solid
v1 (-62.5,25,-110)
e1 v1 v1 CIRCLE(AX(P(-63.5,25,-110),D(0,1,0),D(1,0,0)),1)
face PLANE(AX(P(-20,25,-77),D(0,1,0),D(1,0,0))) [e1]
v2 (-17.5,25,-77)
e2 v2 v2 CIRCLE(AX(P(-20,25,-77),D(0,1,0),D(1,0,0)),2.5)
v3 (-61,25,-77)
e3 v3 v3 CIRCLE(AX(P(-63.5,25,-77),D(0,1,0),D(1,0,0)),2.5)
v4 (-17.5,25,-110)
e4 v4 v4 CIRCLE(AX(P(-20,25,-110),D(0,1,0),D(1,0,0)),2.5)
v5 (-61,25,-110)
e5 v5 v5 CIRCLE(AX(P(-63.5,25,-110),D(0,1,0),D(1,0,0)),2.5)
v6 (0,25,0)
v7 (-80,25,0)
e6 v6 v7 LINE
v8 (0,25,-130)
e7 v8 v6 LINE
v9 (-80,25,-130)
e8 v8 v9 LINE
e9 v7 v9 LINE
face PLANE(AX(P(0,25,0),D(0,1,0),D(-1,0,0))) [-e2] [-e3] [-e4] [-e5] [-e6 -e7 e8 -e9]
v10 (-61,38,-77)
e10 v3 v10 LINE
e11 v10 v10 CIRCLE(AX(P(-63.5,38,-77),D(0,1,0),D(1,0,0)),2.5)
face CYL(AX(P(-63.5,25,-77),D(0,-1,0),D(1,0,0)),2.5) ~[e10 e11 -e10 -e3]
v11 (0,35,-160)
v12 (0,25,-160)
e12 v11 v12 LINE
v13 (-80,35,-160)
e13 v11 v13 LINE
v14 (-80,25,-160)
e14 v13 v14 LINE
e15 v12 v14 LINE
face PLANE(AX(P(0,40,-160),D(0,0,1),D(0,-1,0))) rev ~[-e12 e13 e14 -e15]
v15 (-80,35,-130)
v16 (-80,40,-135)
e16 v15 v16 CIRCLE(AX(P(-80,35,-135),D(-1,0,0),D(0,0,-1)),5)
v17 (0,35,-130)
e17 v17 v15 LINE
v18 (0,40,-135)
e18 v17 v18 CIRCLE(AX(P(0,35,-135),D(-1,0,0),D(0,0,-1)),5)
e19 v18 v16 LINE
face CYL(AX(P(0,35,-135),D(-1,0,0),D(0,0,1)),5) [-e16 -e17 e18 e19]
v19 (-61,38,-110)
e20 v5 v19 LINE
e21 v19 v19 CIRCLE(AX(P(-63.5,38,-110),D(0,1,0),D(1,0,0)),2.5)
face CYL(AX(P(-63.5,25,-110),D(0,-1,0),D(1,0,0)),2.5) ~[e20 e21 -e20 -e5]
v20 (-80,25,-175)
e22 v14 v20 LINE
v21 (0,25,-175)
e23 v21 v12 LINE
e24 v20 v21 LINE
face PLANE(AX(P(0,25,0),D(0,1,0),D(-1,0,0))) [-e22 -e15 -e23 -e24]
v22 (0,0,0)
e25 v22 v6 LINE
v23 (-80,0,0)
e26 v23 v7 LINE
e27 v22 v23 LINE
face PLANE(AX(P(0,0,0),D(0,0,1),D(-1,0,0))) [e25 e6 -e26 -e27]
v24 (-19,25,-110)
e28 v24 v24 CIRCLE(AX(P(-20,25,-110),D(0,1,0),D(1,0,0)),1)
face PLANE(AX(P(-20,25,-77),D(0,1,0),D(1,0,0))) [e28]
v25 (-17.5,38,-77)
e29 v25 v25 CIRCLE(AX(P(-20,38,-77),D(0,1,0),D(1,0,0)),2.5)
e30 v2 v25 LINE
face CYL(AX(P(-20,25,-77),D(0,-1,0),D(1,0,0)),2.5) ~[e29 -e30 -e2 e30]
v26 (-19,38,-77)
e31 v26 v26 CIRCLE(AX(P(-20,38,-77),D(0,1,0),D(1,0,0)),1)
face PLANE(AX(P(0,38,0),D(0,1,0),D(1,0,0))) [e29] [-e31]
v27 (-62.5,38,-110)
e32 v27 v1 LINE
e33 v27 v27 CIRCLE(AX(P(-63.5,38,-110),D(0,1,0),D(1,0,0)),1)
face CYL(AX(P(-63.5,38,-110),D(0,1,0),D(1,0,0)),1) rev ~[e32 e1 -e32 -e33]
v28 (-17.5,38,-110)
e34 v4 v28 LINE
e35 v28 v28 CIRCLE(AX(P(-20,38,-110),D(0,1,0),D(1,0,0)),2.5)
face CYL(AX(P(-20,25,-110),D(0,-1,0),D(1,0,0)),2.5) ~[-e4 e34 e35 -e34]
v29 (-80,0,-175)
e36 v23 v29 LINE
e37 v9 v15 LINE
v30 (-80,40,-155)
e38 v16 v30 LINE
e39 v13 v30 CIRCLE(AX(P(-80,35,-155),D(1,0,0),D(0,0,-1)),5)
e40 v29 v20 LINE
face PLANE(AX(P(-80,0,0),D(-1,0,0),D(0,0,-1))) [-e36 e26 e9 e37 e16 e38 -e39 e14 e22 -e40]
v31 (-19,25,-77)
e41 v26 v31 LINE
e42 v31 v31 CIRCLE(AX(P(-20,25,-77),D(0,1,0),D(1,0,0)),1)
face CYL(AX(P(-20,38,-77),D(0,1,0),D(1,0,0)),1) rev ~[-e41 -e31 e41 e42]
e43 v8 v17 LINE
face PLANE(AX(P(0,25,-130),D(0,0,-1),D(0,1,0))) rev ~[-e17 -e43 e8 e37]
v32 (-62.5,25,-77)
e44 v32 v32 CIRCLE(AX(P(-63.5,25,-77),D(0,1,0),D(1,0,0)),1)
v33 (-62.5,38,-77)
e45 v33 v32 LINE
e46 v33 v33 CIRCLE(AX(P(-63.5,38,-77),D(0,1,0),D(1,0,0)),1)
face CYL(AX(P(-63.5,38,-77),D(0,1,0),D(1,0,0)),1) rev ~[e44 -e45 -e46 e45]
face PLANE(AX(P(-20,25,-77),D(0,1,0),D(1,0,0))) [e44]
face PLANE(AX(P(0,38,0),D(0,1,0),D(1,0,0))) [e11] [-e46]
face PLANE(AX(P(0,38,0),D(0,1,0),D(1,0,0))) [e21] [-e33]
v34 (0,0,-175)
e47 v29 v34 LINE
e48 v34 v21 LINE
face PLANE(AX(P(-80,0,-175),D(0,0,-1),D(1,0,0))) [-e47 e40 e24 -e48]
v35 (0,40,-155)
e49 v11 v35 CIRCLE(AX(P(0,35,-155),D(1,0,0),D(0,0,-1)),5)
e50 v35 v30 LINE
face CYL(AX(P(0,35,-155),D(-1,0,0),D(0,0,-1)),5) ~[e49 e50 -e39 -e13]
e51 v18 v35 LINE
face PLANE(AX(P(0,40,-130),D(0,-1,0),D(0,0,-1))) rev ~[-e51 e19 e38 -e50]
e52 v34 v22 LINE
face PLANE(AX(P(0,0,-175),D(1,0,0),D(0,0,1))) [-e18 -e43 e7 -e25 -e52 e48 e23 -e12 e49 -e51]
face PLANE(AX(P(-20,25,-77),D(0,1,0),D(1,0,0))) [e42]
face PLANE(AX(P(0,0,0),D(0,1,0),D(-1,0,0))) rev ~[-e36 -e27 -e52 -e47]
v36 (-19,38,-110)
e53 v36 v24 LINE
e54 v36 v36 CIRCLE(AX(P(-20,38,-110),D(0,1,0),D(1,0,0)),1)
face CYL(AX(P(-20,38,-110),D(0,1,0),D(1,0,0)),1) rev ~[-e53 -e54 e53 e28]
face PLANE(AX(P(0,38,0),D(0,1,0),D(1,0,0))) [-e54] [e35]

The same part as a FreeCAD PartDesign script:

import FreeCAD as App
import Part
import Sketcher
from FreeCAD import Vector
Q = App.Units.Quantity


def edges_at(feature, points):
    """Names of the edges that pass closest to the given points."""
    edges = feature.Shape.Edges
    near = lambda p: min(range(len(edges)), key=lambda i: edges[i].distToShape(Part.Vertex(*p))[0])
    return sorted({f"Edge{near(p) + 1}" for p in points})


def add_polygon(sketch, points):
    """Adds a closed chain of lines whose ends are joined by coincident constraints."""
    first, n = sketch.GeometryCount, len(points)
    for a, b in zip(points, points[1:] + points[:1]):
        sketch.addGeometry(Part.LineSegment(App.Vector(*a, 0), App.Vector(*b, 0)), False)
    for i in range(n):
        sketch.addConstraint(Sketcher.Constraint("Coincident", first + i, 2, first + (i + 1) % n, 1))

doc = App.newDocument("Part")
body = doc.addObject("PartDesign::Body", "Body")

# Sketch on XZ plane
sketch1 = body.newObject("Sketcher::SketchObject", "Sketch")
sketch1.AttachmentSupport = (doc.getObject("XZ_Plane"), [""])
sketch1.MapMode = "FlatFace"
add_polygon(sketch1, [(-80, 0), (0, 0), (0, -175), (-80, -175)])  # lines 0-3
sketch1.addConstraint([
    Sketcher.Constraint("Horizontal", 0),
    Sketcher.Constraint("Vertical", 1),
    Sketcher.Constraint("Horizontal", 2),
    Sketcher.Constraint("Vertical", 3),
    Sketcher.Constraint("Coincident", 0, 2, -1, 1),
    Sketcher.Constraint("DistanceX", 0, 1, 0, 2, Q("80 mm")),
    Sketcher.Constraint("DistanceY", 1, 2, 1, 1, Q("175 mm")),
])
pad1 = body.newObject("PartDesign::Pad", "Pad")
pad1.Profile = sketch1
pad1.Length = 25
pad1.Reversed = True

# Sketch on YZ plane
sketch2 = body.newObject("Sketcher::SketchObject", "Sketch001")
sketch2.AttachmentSupport = (doc.getObject("YZ_Plane"), [""])
sketch2.MapMode = "FlatFace"
add_polygon(sketch2, [(25, -130), (25, -160), (40, -160), (40, -130)])  # lines 0-3
sketch2.addConstraint([
    Sketcher.Constraint("Vertical", 0),
    Sketcher.Constraint("Horizontal", 1),
    Sketcher.Constraint("Vertical", 2),
    Sketcher.Constraint("Horizontal", 3),
    Sketcher.Constraint("DistanceX", 1, 1, 1, 2, Q("15 mm")),
    Sketcher.Constraint("DistanceY", 0, 2, 0, 1, Q("30 mm")),
    Sketcher.Constraint("DistanceX", -1, 1, 0, 2, Q("25 mm")),
    Sketcher.Constraint("DistanceY", 0, 2, -1, 1, Q("160 mm")),
])
pad2 = body.newObject("PartDesign::Pad", "Pad001")
pad2.Profile = sketch2
pad2.Length = 80
pad2.Reversed = True
doc.recompute()

fillet = body.newObject("PartDesign::Fillet", "Fillet")
fillet.Base = (pad2, edges_at(pad2, [(-40, 40, -130), (-40, 40, -160)]))
fillet.Radius = 5

# Sketch on XZ plane
sketch3 = body.newObject("Sketcher::SketchObject", "Sketch002")
sketch3.AttachmentSupport = (doc.getObject("XZ_Plane"), [""])
sketch3.MapMode = "FlatFace"
sketch3.AttachmentOffset = App.Placement(Vector(0, 0, -25), App.Rotation())
sketch3.addGeometry([
    Part.Circle(Vector(-63.5, -110, 0), Vector(0, 0, 1), 2.5),
    Part.Circle(Vector(-20, -110, 0), Vector(0, 0, 1), 2.5),
    Part.Circle(Vector(-20, -77, 0), Vector(0, 0, 1), 2.5),
    Part.Circle(Vector(-63.5, -77, 0), Vector(0, 0, 1), 2.5),
], False)
sketch3.addConstraint([
    Sketcher.Constraint("Equal", 0, 1),
    Sketcher.Constraint("Equal", 1, 2),
    Sketcher.Constraint("Equal", 2, 3),
    Sketcher.Constraint("Horizontal", 0, 3, 1, 3),
    Sketcher.Constraint("Horizontal", 2, 3, 3, 3),
    Sketcher.Constraint("Vertical", 1, 3, 2, 3),
    Sketcher.Constraint("Vertical", 0, 3, 3, 3),
    Sketcher.Constraint("Diameter", 0, Q("5 mm")),
    Sketcher.Constraint("DistanceX", 1, 3, -1, 1, Q("20 mm")),
    Sketcher.Constraint("DistanceY", 1, 3, 2, 3, Q("33 mm")),
    Sketcher.Constraint("DistanceX", 0, 3, 1, 3, Q("43.5 mm")),
    Sketcher.Constraint("DistanceY", 0, 3, -1, 1, Q("110 mm")),
])
pad3 = body.newObject("PartDesign::Pad", "Pad002")
pad3.Profile = sketch3
pad3.Length = 13
pad3.Reversed = True

# Sketch on XZ plane
sketch4 = body.newObject("Sketcher::SketchObject", "Sketch003")
sketch4.AttachmentSupport = (doc.getObject("XZ_Plane"), [""])
sketch4.MapMode = "FlatFace"
sketch4.AttachmentOffset = App.Placement(Vector(0, 0, -38), App.Rotation())
sketch4.addGeometry([
    Part.Circle(Vector(-63.5, -77, 0), Vector(0, 0, 1), 1),
    Part.Circle(Vector(-63.5, -110, 0), Vector(0, 0, 1), 1),
    Part.Circle(Vector(-20, -110, 0), Vector(0, 0, 1), 1),
    Part.Circle(Vector(-20, -77, 0), Vector(0, 0, 1), 1),
], False)
sketch4.addConstraint([
    Sketcher.Constraint("Equal", 0, 1),
    Sketcher.Constraint("Equal", 1, 2),
    Sketcher.Constraint("Equal", 2, 3),
    Sketcher.Constraint("Horizontal", 1, 3, 2, 3),
    Sketcher.Constraint("Horizontal", 0, 3, 3, 3),
    Sketcher.Constraint("Vertical", 0, 3, 1, 3),
    Sketcher.Constraint("Vertical", 2, 3, 3, 3),
    Sketcher.Constraint("Diameter", 0, Q("2 mm")),
    Sketcher.Constraint("DistanceY", 0, 3, -1, 1, Q("77 mm")),
    Sketcher.Constraint("DistanceY", 1, 3, -1, 1, Q("110 mm")),
    Sketcher.Constraint("DistanceX", 2, 3, -1, 1, Q("20 mm")),
    Sketcher.Constraint("DistanceX", 0, 3, -1, 1, Q("63.5 mm")),
])
pocket1 = body.newObject("PartDesign::Pocket", "Pocket")
pocket1.Profile = sketch4
pocket1.Length = 13
pocket1.Reversed = True

doc.recompute()
